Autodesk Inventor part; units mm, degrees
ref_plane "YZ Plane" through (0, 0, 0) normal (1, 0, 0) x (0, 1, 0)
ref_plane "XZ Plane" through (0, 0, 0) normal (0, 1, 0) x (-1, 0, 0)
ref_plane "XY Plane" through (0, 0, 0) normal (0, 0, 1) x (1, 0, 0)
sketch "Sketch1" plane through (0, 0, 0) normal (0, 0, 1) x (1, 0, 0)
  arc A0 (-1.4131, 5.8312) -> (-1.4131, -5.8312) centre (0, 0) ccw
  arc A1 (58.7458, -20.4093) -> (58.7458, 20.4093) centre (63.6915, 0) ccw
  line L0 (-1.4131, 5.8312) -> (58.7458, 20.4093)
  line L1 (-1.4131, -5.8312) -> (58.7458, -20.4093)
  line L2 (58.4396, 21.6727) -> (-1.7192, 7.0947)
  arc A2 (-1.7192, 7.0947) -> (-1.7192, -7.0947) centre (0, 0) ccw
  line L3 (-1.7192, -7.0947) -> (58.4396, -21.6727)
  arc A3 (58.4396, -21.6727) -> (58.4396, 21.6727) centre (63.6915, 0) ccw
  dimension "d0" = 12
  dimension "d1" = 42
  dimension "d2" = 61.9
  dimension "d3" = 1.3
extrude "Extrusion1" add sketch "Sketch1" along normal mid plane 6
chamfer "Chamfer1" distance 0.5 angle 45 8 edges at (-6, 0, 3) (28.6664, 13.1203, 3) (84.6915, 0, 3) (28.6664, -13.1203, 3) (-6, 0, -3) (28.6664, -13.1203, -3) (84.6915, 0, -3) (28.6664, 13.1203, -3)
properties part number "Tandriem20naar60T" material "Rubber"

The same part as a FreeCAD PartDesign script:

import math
import FreeCAD as App
import Part
import Sketcher


def edges_at(feature, points):
    """Names of the edges that pass closest to the given points."""
    edges = feature.Shape.Edges
    near = lambda p: min(range(len(edges)), key=lambda i: edges[i].distToShape(Part.Vertex(*p))[0])
    return sorted({f"Edge{near(p) + 1}" for p in points})

doc = App.newDocument("Part")
params = doc.addObject("Spreadsheet::Sheet", "Params")
for row, (alias, value) in enumerate([
    ("sketch1_radius", "6 mm"),
    ("sketch1_radius2", "21 mm"),
    ("sketch1_length", "61.9 mm"),
    ("sketch1_radius3", "22.3 mm"),
    ("pad1_length", "6 mm"),
    ("chamfer_size", "0.5 mm"),
], start=1):
    params.set(f"A{row}", alias)
    params.set(f"B{row}", "=" + value)
    params.setAlias(f"B{row}", alias)

body = doc.addObject("PartDesign::Body", "Body")

sketch1 = body.newObject("Sketcher::SketchObject", "Sketch")
sketch1.AttachmentSupport = (doc.getObject("XY_Plane"), [""])
sketch1.MapMode = "FlatFace"
sketch1.addGeometry([
    Part.ArcOfCircle(Part.Circle(App.Vector(63.6915, 0, 0), App.Vector(0, 0, 1), 22.299964), math.radians(-103.621781), math.radians(103.621781)),
    Part.LineSegment(App.Vector(58.4396, 21.6727, 0), App.Vector(-1.7192, 7.0947, 0)),
    Part.ArcOfCircle(Part.Circle(App.Vector(0, 0, 0), App.Vector(0, 0, 1), 7.300029), math.radians(103.621447), math.radians(256.378553)),
    Part.LineSegment(App.Vector(-1.7192, -7.0947, 0), App.Vector(58.4396, -21.6727, 0)),
    Part.ArcOfCircle(Part.Circle(App.Vector(0, 0, 0), App.Vector(0, 0, 1), 5.999979), math.radians(103.62213), math.radians(256.37787)),
    Part.LineSegment(App.Vector(-1.4131, 5.8312, 0), App.Vector(58.7458, 20.4093, 0)),
    Part.ArcOfCircle(Part.Circle(App.Vector(63.6915, 0, 0), App.Vector(0, 0, 1), 20.999987), math.radians(-103.621668), math.radians(103.621668)),
    Part.LineSegment(App.Vector(58.7458, -20.4093, 0), App.Vector(-1.4131, -5.8312, 0)),
], False)
sketch1.addConstraint([
    Sketcher.Constraint("Tangent", 0, 2, 1, 1),
    Sketcher.Constraint("Tangent", 1, 2, 2, 1),
    Sketcher.Constraint("Tangent", 2, 2, 3, 1),
    Sketcher.Constraint("Tangent", 3, 2, 0, 1),
    Sketcher.Constraint("Tangent", 4, 1, 5, 1),
    Sketcher.Constraint("Tangent", 5, 2, 6, 2),
    Sketcher.Constraint("Tangent", 6, 1, 7, 1),
    Sketcher.Constraint("Tangent", 7, 2, 4, 2),
    Sketcher.Constraint("Coincident", 2, 3, -1, 1),
    Sketcher.Constraint("Coincident", 4, 3, -1, 1),
    Sketcher.Constraint("Coincident", 6, 3, 0, 3),
    Sketcher.Constraint("PointOnObject", 0, 3, -1),
    Sketcher.Constraint("Parallel", 1, 5),
    Sketcher.Constraint("Radius", 4, 6.0),
    Sketcher.Constraint("Radius", 6, 21.0),
    Sketcher.Constraint("Distance", 1, 61.9),
    Sketcher.Constraint("Radius", 0, 22.3),
])
sketch1.setExpression("Constraints[13]", "Params.sketch1_radius")
sketch1.setExpression("Constraints[14]", "Params.sketch1_radius2")
sketch1.setExpression("Constraints[15]", "Params.sketch1_length")
sketch1.setExpression("Constraints[16]", "Params.sketch1_radius3")
pad1 = body.newObject("PartDesign::Pad", "Pad")
pad1.Profile = sketch1
pad1.setExpression("Length", "Params.pad1_length")
pad1.Midplane = True
doc.recompute()

chamfer = body.newObject("PartDesign::Chamfer", "Chamfer")
chamfer.Base = (pad1, edges_at(pad1, [
    (-6, 0, 3),
    (28.666, 13.12, 3),
    (84.692, 0, 3),
    (28.666, -13.12, 3),
    (-6, 0, -3),
    (28.666, -13.12, -3),
    (84.692, 0, -3),
    (28.666, 13.12, -3),
]))
chamfer.setExpression("Size", "Params.chamfer_size")

doc.recompute()
